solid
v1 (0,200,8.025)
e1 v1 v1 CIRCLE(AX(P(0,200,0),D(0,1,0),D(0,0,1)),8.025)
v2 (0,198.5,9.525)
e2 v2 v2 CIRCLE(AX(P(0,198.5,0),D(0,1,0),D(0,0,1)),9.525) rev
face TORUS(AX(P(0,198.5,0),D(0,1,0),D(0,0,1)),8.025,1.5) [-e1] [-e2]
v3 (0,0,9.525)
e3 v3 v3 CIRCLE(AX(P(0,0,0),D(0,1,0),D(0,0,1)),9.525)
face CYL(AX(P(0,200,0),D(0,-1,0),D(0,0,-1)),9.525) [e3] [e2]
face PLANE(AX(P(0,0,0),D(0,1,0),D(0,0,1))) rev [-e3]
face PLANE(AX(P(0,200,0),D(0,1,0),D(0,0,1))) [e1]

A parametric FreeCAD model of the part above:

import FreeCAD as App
import Part
import Sketcher
from FreeCAD import Vector


def edges_at(feature, points):
    """Names of the edges that pass closest to the given points."""
    edges = feature.Shape.Edges
    near = lambda p: min(range(len(edges)), key=lambda i: edges[i].distToShape(Part.Vertex(*p))[0])
    return sorted({f"Edge{near(p) + 1}" for p in points})

doc = App.newDocument("Part")
params = doc.addObject("Spreadsheet::Sheet", "Params")
for row, (alias, value) in enumerate([
    ("sketch1_diameter", "19.05 mm"),
    ("pad1_length", "200 mm"),
    ("fillet_radius", "1.5 mm"),
], start=1):
    params.set(f"A{row}", alias)
    params.set(f"B{row}", "=" + value)
    params.setAlias(f"B{row}", alias)

body = doc.addObject("PartDesign::Body", "Body")

# Sketch on XZ plane
sketch1 = body.newObject("Sketcher::SketchObject", "Sketch")
sketch1.AttachmentSupport = (doc.getObject("XZ_Plane"), [""])
sketch1.MapMode = "FlatFace"
sketch1.addGeometry(Part.Circle(Vector(0, 0, 0), Vector(0, 0, 1), 10), False)
sketch1.addConstraint(Sketcher.Constraint("Coincident", 0, 3, -1, 1))
sketch1.addConstraint(Sketcher.Constraint("Diameter", 0, 19.05))
sketch1.setExpression("Constraints[1]", "Params.sketch1_diameter")
pad1 = body.newObject("PartDesign::Pad", "Pad")
pad1.Profile = sketch1
pad1.setExpression("Length", "Params.pad1_length")
pad1.Reversed = True
doc.recompute()

fillet = body.newObject("PartDesign::Fillet", "Fillet")
fillet.Base = (pad1, edges_at(pad1, [(-9.525, 200, 0)]))
fillet.setExpression("Radius", "Params.fillet_radius")

doc.recompute()
